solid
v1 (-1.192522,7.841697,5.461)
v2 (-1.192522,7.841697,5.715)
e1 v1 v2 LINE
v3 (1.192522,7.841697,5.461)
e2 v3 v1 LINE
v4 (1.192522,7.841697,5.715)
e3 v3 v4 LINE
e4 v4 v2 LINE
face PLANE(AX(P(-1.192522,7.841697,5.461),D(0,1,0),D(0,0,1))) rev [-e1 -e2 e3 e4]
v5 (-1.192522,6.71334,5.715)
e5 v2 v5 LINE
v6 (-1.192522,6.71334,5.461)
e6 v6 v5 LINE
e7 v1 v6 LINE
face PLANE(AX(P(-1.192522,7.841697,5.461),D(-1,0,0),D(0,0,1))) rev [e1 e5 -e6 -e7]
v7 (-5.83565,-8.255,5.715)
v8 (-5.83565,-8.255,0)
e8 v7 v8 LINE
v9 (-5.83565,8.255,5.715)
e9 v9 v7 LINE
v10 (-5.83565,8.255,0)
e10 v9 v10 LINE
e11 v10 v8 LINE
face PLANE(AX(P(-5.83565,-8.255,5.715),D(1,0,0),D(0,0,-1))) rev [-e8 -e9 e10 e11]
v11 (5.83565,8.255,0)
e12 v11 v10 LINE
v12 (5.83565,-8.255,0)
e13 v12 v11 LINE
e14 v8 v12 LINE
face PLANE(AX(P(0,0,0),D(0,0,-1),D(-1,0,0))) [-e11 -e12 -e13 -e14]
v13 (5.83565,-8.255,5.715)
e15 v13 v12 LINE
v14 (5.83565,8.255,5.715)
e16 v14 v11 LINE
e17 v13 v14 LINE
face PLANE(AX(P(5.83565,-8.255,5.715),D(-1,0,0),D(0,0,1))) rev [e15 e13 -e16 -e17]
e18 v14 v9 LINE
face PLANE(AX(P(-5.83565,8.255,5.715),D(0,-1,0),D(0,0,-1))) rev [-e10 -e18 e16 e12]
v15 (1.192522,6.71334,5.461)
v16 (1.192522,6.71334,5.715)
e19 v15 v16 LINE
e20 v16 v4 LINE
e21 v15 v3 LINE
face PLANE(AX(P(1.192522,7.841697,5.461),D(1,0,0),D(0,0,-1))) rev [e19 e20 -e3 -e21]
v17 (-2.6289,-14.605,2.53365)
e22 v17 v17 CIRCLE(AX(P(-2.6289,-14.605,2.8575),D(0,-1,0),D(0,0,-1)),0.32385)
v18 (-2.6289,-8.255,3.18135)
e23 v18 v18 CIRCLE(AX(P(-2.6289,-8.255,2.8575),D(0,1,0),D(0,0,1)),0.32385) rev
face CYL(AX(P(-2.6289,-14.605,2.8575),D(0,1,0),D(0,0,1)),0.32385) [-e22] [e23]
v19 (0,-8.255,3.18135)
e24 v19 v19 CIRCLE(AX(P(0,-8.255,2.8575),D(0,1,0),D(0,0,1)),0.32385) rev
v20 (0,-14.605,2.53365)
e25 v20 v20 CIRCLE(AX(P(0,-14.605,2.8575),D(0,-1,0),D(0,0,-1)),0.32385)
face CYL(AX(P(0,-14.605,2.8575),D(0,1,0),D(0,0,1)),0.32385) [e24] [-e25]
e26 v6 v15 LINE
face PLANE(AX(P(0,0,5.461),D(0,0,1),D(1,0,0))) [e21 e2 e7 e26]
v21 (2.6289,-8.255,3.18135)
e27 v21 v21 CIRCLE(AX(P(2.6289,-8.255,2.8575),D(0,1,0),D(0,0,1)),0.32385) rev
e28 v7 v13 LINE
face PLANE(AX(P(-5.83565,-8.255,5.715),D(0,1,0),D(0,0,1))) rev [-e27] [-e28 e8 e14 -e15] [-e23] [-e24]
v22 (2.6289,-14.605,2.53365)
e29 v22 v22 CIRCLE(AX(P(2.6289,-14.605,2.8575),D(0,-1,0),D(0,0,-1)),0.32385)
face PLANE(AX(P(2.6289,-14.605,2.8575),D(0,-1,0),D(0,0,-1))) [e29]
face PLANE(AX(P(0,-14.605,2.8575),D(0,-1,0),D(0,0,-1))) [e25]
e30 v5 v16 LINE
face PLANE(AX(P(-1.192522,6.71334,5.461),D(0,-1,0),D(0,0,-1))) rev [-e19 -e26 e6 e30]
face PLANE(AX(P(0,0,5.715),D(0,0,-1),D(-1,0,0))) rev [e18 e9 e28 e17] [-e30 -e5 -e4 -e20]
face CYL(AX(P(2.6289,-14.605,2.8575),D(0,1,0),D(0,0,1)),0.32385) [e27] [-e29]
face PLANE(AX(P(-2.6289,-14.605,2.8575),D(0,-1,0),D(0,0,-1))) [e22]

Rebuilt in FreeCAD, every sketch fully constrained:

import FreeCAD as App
import Part
import Sketcher

V = App.Vector
Q = App.Units.Quantity


def add_polygon(sketch, points):
    """Adds a closed chain of lines whose ends are joined by coincident constraints."""
    first, n = sketch.GeometryCount, len(points)
    for a, b in zip(points, points[1:] + points[:1]):
        sketch.addGeometry(Part.LineSegment(App.Vector(*a, 0), App.Vector(*b, 0)), False)
    for i in range(n):
        sketch.addConstraint(Sketcher.Constraint("Coincident", first + i, 2, first + (i + 1) % n, 1))

doc = App.newDocument("Part")
body = doc.addObject("PartDesign::Body", "Body")

# Sketch on XY plane
sketch1 = body.newObject("Sketcher::SketchObject", "Sketch")
sketch1.AttachmentSupport = (doc.getObject("XY_Plane"), [""])
sketch1.MapMode = "FlatFace"
add_polygon(sketch1, [(-5.83565, 8.255), (-5.83565, -8.255), (5.83565, -8.255), (5.83565, 8.255)])  # lines 0-3
sketch1.addConstraint(Sketcher.Constraint("Vertical", 0))
sketch1.addConstraint(Sketcher.Constraint("Horizontal", 1))
sketch1.addConstraint(Sketcher.Constraint("Vertical", 2))
sketch1.addConstraint(Sketcher.Constraint("Horizontal", 3))
sketch1.addConstraint(Sketcher.Constraint("Symmetric", 0, 2, 2, 2, -1, 1))
sketch1.addConstraint(Sketcher.Constraint("DistanceY", 0, 2, 0, 1, Q("0.65 in")))
sketch1.addConstraint(Sketcher.Constraint("DistanceX", 1, 1, 1, 2, Q("0.4595 in")))
pad1 = body.newObject("PartDesign::Pad", "Pad")
pad1.Profile = sketch1
pad1.Length = Q("0.225 in")

# Sketch on XY plane
sketch2 = body.newObject("Sketcher::SketchObject", "Sketch001")
sketch2.AttachmentSupport = (doc.getObject("XY_Plane"), [""])
sketch2.MapMode = "FlatFace"
sketch2.AttachmentOffset = App.Placement(V(0, 0, 0.225 * 25.4), App.Rotation())
add_polygon(sketch2, [(-1.192522, 7.841697), (-1.192522, 6.71334), (1.192522, 6.71334), (1.192522, 7.841697)])  # lines 0-3
sketch2.addConstraint(Sketcher.Constraint("Vertical", 0))
sketch2.addConstraint(Sketcher.Constraint("Horizontal", 1))
sketch2.addConstraint(Sketcher.Constraint("Vertical", 2))
sketch2.addConstraint(Sketcher.Constraint("Horizontal", 3))
sketch2.addConstraint(Sketcher.Constraint("DistanceX", 1, 1, 1, 2, 2.385044))
sketch2.addConstraint(Sketcher.Constraint("DistanceY", 0, 2, 0, 1, 1.128357))
sketch2.addConstraint(Sketcher.Constraint("DistanceY", -1, 1, 0, 2, 6.71334))
sketch2.addConstraint(Sketcher.Constraint("DistanceX", 0, 2, -1, 1, 1.192522))
pocket1 = body.newObject("PartDesign::Pocket", "Pocket")
pocket1.Profile = sketch2
pocket1.Length = Q("0.01 in")

# Sketch on XZ plane
sketch3 = body.newObject("Sketcher::SketchObject", "Sketch002")
sketch3.AttachmentSupport = (doc.getObject("XZ_Plane"), [""])
sketch3.MapMode = "FlatFace"
sketch3.AttachmentOffset = App.Placement(V(0, 0, 0.325 * 25.4), App.Rotation())
sketch3.addGeometry(Part.Circle(V(-2.6289, 2.8575, 0), V(0, 0, 1), 0.32385), False)
sketch3.addGeometry(Part.Circle(V(0, 2.8575, 0), V(0, 0, 1), 0.32385), False)
sketch3.addGeometry(Part.Circle(V(2.6289, 2.8575, 0), V(0, 0, 1), 0.32385), False)
sketch3.addConstraint(Sketcher.Constraint("Equal", 0, 1))
sketch3.addConstraint(Sketcher.Constraint("Equal", 1, 2))
sketch3.addConstraint(Sketcher.Constraint("Symmetric", 0, 3, 2, 3, -2))
sketch3.addConstraint(Sketcher.Constraint("PointOnObject", 1, 3, -2))
sketch3.addConstraint(Sketcher.Constraint("Horizontal", 0, 3, 1, 3))
sketch3.addConstraint(Sketcher.Constraint("Diameter", 0, Q("0.0255 in")))
sketch3.addConstraint(Sketcher.Constraint("DistanceX", 0, 3, 2, 3, Q("0.207 in")))
sketch3.addConstraint(Sketcher.Constraint("DistanceY", -1, 1, 0, 3, Q("0.1125 in")))
pad2 = body.newObject("PartDesign::Pad", "Pad001")
pad2.Profile = sketch3
pad2.Length = Q("0.25 in")

doc.recompute()
